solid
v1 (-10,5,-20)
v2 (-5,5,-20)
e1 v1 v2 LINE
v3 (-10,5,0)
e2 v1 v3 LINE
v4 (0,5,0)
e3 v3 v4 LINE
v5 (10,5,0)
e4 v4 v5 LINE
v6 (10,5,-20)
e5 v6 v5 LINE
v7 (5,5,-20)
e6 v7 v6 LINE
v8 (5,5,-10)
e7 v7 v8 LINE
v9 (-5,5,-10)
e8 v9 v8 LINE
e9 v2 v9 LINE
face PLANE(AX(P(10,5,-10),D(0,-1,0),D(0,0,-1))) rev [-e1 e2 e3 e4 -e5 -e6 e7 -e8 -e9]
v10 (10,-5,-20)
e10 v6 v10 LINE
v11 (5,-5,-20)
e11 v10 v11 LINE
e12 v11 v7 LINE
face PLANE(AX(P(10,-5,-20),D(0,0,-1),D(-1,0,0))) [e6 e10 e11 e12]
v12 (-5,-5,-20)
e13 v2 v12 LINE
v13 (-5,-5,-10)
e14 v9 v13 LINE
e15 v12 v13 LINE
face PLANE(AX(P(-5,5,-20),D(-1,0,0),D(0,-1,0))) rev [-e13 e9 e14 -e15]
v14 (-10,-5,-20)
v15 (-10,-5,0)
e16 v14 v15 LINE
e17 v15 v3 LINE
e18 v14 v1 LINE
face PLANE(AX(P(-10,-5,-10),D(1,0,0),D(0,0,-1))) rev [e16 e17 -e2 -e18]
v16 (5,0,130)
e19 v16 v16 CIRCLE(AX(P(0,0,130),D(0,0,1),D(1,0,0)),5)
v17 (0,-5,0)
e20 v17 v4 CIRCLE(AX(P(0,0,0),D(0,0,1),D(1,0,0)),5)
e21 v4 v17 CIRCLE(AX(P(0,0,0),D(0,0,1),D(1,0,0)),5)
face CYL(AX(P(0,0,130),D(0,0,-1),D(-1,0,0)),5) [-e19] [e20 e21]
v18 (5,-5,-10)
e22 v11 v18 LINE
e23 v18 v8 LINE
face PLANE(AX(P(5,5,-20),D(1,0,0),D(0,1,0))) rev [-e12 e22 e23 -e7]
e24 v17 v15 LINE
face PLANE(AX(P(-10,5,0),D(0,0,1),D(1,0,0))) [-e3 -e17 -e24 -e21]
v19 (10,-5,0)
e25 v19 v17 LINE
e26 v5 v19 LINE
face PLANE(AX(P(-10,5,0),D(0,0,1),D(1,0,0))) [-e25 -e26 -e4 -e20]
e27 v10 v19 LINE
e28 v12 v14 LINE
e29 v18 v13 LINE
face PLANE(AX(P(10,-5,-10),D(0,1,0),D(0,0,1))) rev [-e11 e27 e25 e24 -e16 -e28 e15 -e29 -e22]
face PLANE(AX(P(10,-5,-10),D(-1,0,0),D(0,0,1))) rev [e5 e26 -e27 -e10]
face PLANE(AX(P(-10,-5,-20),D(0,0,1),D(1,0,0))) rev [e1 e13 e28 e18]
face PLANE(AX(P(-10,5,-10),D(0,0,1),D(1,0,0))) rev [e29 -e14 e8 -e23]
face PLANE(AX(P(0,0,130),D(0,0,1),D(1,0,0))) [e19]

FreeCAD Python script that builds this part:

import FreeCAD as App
import Part
import Sketcher

doc = App.newDocument("Part")
body = doc.addObject("PartDesign::Body", "Body")

# Sketch on XY plane
sketch1 = body.newObject("Sketcher::SketchObject", "Sketch")
sketch1.AttachmentSupport = (doc.getObject("XY_Plane"), [""])
sketch1.MapMode = "FlatFace"
sketch1.addGeometry(Part.Circle(App.Vector(0, 0, 0), App.Vector(0, 0, 1), 5), False)
sketch1.addConstraint([
    Sketcher.Constraint("Coincident", 0, 3, -1, 1),
    Sketcher.Constraint("Diameter", 0, 10.0),
])
pad1 = body.newObject("PartDesign::Pad", "Pad")
pad1.Profile = sketch1
pad1.Length = 130

# Sketch on XY plane
sketch2 = body.newObject("Sketcher::SketchObject", "Sketch001")
sketch2.AttachmentSupport = (doc.getObject("XY_Plane"), [""])
sketch2.MapMode = "FlatFace"
sketch2.addGeometry([
    Part.LineSegment(App.Vector(10, 5, 0), App.Vector(10, -5, 0)),
    Part.LineSegment(App.Vector(10, -5, 0), App.Vector(-10, -5, 0)),
    Part.LineSegment(App.Vector(-10, -5, 0), App.Vector(-10, 5, 0)),
    Part.LineSegment(App.Vector(-10, 5, 0), App.Vector(10, 5, 0)),
], False)
sketch2.addConstraint([
    Sketcher.Constraint("Coincident", 0, 2, 1, 1),
    Sketcher.Constraint("Coincident", 1, 2, 2, 1),
    Sketcher.Constraint("Coincident", 2, 2, 3, 1),
    Sketcher.Constraint("Coincident", 3, 2, 0, 1),
    Sketcher.Constraint("Vertical", 0),
    Sketcher.Constraint("Horizontal", 1),
    Sketcher.Constraint("Vertical", 2),
    Sketcher.Constraint("Horizontal", 3),
    Sketcher.Constraint("Symmetric", 0, 2, 2, 2, -1, 1),
    Sketcher.Constraint("DistanceX", 1, 2, 1, 1, 20.0),
    Sketcher.Constraint("DistanceY", 0, 2, 0, 1, 10.0),
])
pad2 = body.newObject("PartDesign::Pad", "Pad001")
pad2.Profile = sketch2
pad2.Length = 10
pad2.Reversed = True

# Sketch on XY plane
sketch3 = body.newObject("Sketcher::SketchObject", "Sketch002")
sketch3.AttachmentSupport = (doc.getObject("XY_Plane"), [""])
sketch3.MapMode = "FlatFace"
sketch3.AttachmentOffset = App.Placement(App.Vector(0, 0, -10), App.Rotation())
sketch3.addGeometry([
    Part.LineSegment(App.Vector(10, 5, 0), App.Vector(10, -5, 0)),
    Part.LineSegment(App.Vector(10, -5, 0), App.Vector(5, -5, 0)),
    Part.LineSegment(App.Vector(5, -5, 0), App.Vector(5, 5, 0)),
    Part.LineSegment(App.Vector(5, 5, 0), App.Vector(10, 5, 0)),
], False)
sketch3.addConstraint([
    Sketcher.Constraint("Coincident", 0, 2, 1, 1),
    Sketcher.Constraint("Coincident", 1, 2, 2, 1),
    Sketcher.Constraint("Coincident", 2, 2, 3, 1),
    Sketcher.Constraint("Coincident", 3, 2, 0, 1),
    Sketcher.Constraint("Vertical", 0),
    Sketcher.Constraint("Horizontal", 1),
    Sketcher.Constraint("Vertical", 2),
    Sketcher.Constraint("Horizontal", 3),
    Sketcher.Constraint("DistanceX", 1, 2, 1, 1, 5.0),
    Sketcher.Constraint("DistanceY", 0, 2, 0, 1, 10.0),
    Sketcher.Constraint("DistanceX", -1, 1, 0, 2, 10.0),
    Sketcher.Constraint("DistanceY", 0, 2, -1, 1, 5.0),
])
pad3 = body.newObject("PartDesign::Pad", "Pad002")
pad3.Profile = sketch3
pad3.Length = 10
pad3.Reversed = True

# Sketch on XY plane
sketch4 = body.newObject("Sketcher::SketchObject", "Sketch003")
sketch4.AttachmentSupport = (doc.getObject("XY_Plane"), [""])
sketch4.MapMode = "FlatFace"
sketch4.AttachmentOffset = App.Placement(App.Vector(0, 0, -10), App.Rotation())
sketch4.addGeometry([
    Part.LineSegment(App.Vector(-5, 5, 0), App.Vector(-5, -5, 0)),
    Part.LineSegment(App.Vector(-5, -5, 0), App.Vector(-10, -5, 0)),
    Part.LineSegment(App.Vector(-10, -5, 0), App.Vector(-10, 5, 0)),
    Part.LineSegment(App.Vector(-10, 5, 0), App.Vector(-5, 5, 0)),
], False)
sketch4.addConstraint([
    Sketcher.Constraint("Coincident", 0, 2, 1, 1),
    Sketcher.Constraint("Coincident", 1, 2, 2, 1),
    Sketcher.Constraint("Coincident", 2, 2, 3, 1),
    Sketcher.Constraint("Coincident", 3, 2, 0, 1),
    Sketcher.Constraint("Vertical", 0),
    Sketcher.Constraint("Horizontal", 1),
    Sketcher.Constraint("Vertical", 2),
    Sketcher.Constraint("Horizontal", 3),
    Sketcher.Constraint("DistanceX", 1, 2, 1, 1, 5.0),
    Sketcher.Constraint("DistanceY", 0, 2, 0, 1, 10.0),
    Sketcher.Constraint("DistanceX", 0, 2, -1, 1, 5.0),
    Sketcher.Constraint("DistanceY", 0, 2, -1, 1, 5.0),
])
pad4 = body.newObject("PartDesign::Pad", "Pad003")
pad4.Profile = sketch4
pad4.Length = 10
pad4.Reversed = True

doc.recompute()
